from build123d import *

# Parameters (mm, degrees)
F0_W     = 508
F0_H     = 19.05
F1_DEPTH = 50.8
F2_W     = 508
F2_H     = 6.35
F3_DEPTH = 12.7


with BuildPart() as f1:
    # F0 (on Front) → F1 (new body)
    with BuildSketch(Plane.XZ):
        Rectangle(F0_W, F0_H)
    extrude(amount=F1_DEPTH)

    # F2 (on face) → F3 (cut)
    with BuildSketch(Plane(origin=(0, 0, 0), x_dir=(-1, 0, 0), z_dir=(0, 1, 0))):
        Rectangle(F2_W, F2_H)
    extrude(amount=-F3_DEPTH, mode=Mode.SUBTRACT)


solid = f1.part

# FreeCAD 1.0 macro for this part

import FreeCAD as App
import Part
import Sketcher
from FreeCAD import Vector
Q = App.Units.Quantity


def add_polygon(sketch, points):
    """Adds a closed chain of lines whose ends are joined by coincident constraints."""
    first, n = sketch.GeometryCount, len(points)
    for a, b in zip(points, points[1:] + points[:1]):
        sketch.addGeometry(Part.LineSegment(App.Vector(*a, 0), App.Vector(*b, 0)), False)
    for i in range(n):
        sketch.addConstraint(Sketcher.Constraint("Coincident", first + i, 2, first + (i + 1) % n, 1))

doc = App.newDocument("Part")
body = doc.addObject("PartDesign::Body", "Body")

# Sketch on XZ plane
sketch1 = body.newObject("Sketcher::SketchObject", "Sketch")
sketch1.AttachmentSupport = (doc.getObject("XZ_Plane"), [""])
sketch1.MapMode = "FlatFace"
add_polygon(sketch1, [(-254, 10), (-254, -10), (254, -10), (254, 10)])  # lines 0-3
sketch1.addConstraint([
    Sketcher.Constraint("Vertical", 0),
    Sketcher.Constraint("Horizontal", 1),
    Sketcher.Constraint("Vertical", 2),
    Sketcher.Constraint("Horizontal", 3),
    Sketcher.Constraint("Symmetric", 0, 2, 2, 2, -1, 1),
    Sketcher.Constraint("DistanceX", 1, 1, 1, 2, Q("20 in")),
    Sketcher.Constraint("DistanceY", 0, 2, 0, 1, Q("0.75 in")),
])
pad1 = body.newObject("PartDesign::Pad", "Pad")
pad1.Profile = sketch1
pad1.Length = Q("2 in")

# Sketch on XZ plane
sketch2 = body.newObject("Sketcher::SketchObject", "Sketch001")
sketch2.AttachmentSupport = (doc.getObject("XZ_Plane"), [""])
sketch2.MapMode = "FlatFace"
add_polygon(sketch2, [(254, 3), (254, -3), (-254, -3), (-254, 3)])  # lines 0-3
sketch2.addConstraint([
    Sketcher.Constraint("Vertical", 0),
    Sketcher.Constraint("Horizontal", 1),
    Sketcher.Constraint("Vertical", 2),
    Sketcher.Constraint("Horizontal", 3),
    Sketcher.Constraint("Symmetric", 0, 2, 2, 2, -1, 1),
    Sketcher.Constraint("DistanceX", 1, 2, 1, 1, Q("20 in")),
    Sketcher.Constraint("DistanceY", 0, 2, 0, 1, Q("0.25 in")),
])
pocket1 = body.newObject("PartDesign::Pocket", "Pocket")
pocket1.Profile = sketch2
pocket1.Length = Q("0.5 in")
pocket1.Reversed = True

doc.recompute()
